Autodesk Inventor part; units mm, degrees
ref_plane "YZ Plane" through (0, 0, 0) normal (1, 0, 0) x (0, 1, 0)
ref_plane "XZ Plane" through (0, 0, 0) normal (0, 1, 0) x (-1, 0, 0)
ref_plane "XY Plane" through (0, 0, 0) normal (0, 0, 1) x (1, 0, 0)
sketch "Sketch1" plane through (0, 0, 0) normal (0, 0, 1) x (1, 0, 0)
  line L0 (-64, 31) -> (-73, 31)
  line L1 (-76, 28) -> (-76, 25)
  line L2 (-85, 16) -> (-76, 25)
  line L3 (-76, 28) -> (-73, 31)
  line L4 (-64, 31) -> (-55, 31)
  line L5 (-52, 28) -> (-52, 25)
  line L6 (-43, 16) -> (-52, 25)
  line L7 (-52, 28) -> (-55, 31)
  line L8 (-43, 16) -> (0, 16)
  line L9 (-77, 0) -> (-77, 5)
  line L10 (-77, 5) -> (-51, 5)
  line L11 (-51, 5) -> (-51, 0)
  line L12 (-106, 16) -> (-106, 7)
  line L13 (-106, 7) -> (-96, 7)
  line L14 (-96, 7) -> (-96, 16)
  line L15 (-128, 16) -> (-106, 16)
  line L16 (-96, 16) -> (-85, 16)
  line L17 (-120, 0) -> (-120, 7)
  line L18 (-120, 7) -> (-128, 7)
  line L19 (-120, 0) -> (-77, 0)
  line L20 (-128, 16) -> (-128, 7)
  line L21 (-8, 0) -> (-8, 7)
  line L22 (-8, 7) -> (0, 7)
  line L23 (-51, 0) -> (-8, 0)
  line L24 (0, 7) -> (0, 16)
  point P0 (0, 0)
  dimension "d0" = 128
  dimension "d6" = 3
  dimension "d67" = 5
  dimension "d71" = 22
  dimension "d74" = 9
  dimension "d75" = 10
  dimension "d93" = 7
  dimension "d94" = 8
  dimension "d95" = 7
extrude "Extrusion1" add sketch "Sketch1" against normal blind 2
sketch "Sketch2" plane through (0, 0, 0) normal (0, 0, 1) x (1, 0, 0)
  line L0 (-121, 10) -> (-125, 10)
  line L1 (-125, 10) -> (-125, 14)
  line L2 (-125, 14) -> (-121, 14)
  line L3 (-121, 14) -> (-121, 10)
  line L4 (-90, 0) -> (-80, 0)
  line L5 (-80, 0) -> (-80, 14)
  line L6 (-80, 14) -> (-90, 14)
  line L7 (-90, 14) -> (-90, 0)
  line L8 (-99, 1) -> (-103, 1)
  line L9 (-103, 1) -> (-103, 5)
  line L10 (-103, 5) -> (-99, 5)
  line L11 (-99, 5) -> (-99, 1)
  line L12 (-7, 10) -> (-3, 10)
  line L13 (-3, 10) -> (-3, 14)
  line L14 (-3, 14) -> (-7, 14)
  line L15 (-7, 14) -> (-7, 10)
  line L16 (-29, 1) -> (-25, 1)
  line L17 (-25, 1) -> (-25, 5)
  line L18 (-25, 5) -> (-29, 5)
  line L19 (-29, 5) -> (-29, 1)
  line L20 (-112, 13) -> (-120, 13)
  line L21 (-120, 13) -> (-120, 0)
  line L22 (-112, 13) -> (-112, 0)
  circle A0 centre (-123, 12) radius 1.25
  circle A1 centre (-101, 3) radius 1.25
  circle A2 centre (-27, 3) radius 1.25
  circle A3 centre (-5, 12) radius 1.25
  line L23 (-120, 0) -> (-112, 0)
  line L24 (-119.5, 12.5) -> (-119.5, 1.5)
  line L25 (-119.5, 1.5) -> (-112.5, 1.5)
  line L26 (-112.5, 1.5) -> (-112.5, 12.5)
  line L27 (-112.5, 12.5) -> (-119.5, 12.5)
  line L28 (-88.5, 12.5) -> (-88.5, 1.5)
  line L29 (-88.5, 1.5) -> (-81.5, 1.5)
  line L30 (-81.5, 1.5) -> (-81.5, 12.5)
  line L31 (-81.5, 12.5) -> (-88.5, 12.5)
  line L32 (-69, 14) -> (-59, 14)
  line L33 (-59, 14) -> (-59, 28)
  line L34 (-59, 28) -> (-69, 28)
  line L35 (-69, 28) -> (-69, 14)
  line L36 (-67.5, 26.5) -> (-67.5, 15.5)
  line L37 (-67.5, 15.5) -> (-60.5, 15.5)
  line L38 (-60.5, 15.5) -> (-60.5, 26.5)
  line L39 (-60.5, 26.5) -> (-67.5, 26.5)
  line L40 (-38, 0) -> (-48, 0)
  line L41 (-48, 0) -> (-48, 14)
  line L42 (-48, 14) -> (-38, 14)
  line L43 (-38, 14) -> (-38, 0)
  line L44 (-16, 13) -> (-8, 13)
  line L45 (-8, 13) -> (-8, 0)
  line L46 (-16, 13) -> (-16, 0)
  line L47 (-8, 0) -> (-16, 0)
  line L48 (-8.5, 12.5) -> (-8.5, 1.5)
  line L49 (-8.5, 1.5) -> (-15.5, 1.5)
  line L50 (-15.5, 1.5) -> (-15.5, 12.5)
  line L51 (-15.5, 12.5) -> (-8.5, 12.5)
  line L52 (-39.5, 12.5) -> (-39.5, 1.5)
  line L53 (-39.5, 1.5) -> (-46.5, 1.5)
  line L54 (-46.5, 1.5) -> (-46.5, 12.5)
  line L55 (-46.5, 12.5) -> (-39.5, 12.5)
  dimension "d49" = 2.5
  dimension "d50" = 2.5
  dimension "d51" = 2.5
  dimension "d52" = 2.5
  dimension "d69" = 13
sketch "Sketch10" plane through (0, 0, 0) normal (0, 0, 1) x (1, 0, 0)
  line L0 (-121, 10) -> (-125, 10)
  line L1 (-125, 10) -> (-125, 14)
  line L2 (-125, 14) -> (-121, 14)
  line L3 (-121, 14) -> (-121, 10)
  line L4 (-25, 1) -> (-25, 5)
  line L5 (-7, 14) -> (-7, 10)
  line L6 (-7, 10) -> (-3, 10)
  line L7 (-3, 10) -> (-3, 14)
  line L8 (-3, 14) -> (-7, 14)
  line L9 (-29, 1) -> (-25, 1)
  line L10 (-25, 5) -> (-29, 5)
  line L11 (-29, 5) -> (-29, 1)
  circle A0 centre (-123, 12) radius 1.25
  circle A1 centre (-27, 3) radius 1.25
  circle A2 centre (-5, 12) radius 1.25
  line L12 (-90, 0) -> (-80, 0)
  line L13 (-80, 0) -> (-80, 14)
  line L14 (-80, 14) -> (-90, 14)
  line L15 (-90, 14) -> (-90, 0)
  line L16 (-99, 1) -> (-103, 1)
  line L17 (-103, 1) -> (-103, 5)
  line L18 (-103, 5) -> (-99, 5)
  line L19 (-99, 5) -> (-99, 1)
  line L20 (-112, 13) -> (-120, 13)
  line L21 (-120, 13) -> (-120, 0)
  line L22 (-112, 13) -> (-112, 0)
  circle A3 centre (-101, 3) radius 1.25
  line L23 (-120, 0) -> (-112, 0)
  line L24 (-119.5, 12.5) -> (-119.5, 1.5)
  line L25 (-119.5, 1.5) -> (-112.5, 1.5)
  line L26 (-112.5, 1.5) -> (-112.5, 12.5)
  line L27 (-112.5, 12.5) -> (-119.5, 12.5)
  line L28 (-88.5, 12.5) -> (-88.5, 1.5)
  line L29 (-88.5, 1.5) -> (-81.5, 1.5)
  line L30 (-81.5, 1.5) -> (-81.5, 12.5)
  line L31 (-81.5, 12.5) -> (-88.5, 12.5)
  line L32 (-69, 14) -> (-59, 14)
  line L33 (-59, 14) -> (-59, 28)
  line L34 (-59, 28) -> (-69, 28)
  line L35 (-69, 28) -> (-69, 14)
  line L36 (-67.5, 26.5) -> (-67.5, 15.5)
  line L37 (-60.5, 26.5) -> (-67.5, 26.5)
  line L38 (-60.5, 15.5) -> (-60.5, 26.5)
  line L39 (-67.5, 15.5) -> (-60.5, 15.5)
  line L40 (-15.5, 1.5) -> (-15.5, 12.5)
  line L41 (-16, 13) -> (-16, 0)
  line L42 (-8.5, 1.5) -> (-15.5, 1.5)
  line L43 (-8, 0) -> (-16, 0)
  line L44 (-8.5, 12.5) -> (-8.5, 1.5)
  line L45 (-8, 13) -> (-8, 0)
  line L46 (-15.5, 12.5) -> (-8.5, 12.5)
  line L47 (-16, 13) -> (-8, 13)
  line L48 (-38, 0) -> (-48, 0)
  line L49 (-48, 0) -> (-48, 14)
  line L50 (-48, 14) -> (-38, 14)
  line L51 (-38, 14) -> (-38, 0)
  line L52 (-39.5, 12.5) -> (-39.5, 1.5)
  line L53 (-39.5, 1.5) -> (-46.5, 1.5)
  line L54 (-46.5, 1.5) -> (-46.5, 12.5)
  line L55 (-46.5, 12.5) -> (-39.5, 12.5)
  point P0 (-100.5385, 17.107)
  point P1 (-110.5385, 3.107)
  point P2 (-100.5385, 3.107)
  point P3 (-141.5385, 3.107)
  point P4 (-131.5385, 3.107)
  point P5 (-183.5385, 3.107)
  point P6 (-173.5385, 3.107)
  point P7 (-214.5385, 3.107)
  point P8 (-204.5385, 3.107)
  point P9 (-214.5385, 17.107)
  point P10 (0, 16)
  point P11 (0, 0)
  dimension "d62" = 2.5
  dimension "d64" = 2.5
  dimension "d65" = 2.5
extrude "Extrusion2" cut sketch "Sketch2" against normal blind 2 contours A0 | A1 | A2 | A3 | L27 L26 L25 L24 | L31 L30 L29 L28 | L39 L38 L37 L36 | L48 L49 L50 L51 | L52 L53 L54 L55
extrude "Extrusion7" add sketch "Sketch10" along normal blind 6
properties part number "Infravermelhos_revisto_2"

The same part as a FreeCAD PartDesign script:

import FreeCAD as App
import Part
import Sketcher
Q = App.Units.Quantity

doc = App.newDocument("Part")
body = doc.addObject("PartDesign::Body", "Body")

# Sketch on XY plane
sketch1 = body.newObject("Sketcher::SketchObject", "Sketch")
sketch1.AttachmentSupport = (doc.getObject("XY_Plane"), [""])
sketch1.MapMode = "FlatFace"
sketch1.addGeometry(Part.LineSegment(App.Vector(-55, 31, 0), App.Vector(-73, 31, 0)), False)
sketch1.addGeometry(Part.LineSegment(App.Vector(-73, 31, 0), App.Vector(-76, 28, 0)), False)
sketch1.addGeometry(Part.LineSegment(App.Vector(-76, 28, 0), App.Vector(-76, 25, 0)), False)
sketch1.addGeometry(Part.LineSegment(App.Vector(-76, 25, 0), App.Vector(-85, 16, 0)), False)
sketch1.addGeometry(Part.LineSegment(App.Vector(-85, 16, 0), App.Vector(-96, 16, 0)), False)
sketch1.addGeometry(Part.LineSegment(App.Vector(-96, 16, 0), App.Vector(-96, 7, 0)), False)
sketch1.addGeometry(Part.LineSegment(App.Vector(-96, 7, 0), App.Vector(-106, 7, 0)), False)
sketch1.addGeometry(Part.LineSegment(App.Vector(-106, 7, 0), App.Vector(-106, 16, 0)), False)
sketch1.addGeometry(Part.LineSegment(App.Vector(-106, 16, 0), App.Vector(-128, 16, 0)), False)
sketch1.addGeometry(Part.LineSegment(App.Vector(-128, 16, 0), App.Vector(-128, 7, 0)), False)
sketch1.addGeometry(Part.LineSegment(App.Vector(-128, 7, 0), App.Vector(-120, 7, 0)), False)
sketch1.addGeometry(Part.LineSegment(App.Vector(-120, 7, 0), App.Vector(-120, 0, 0)), False)
sketch1.addGeometry(Part.LineSegment(App.Vector(-120, 0, 0), App.Vector(-77, 0, 0)), False)
sketch1.addGeometry(Part.LineSegment(App.Vector(-77, 0, 0), App.Vector(-77, 5, 0)), False)
sketch1.addGeometry(Part.LineSegment(App.Vector(-77, 5, 0), App.Vector(-51, 5, 0)), False)
sketch1.addGeometry(Part.LineSegment(App.Vector(-51, 5, 0), App.Vector(-51, 0, 0)), False)
sketch1.addGeometry(Part.LineSegment(App.Vector(-51, 0, 0), App.Vector(-8, 0, 0)), False)
sketch1.addGeometry(Part.LineSegment(App.Vector(-8, 0, 0), App.Vector(-8, 7, 0)), False)
sketch1.addGeometry(Part.LineSegment(App.Vector(-8, 7, 0), App.Vector(0, 7, 0)), False)
sketch1.addGeometry(Part.LineSegment(App.Vector(0, 7, 0), App.Vector(0, 16, 0)), False)
sketch1.addGeometry(Part.LineSegment(App.Vector(0, 16, 0), App.Vector(-43, 16, 0)), False)
sketch1.addGeometry(Part.LineSegment(App.Vector(-43, 16, 0), App.Vector(-52, 25, 0)), False)
sketch1.addGeometry(Part.LineSegment(App.Vector(-52, 25, 0), App.Vector(-52, 28, 0)), False)
sketch1.addGeometry(Part.LineSegment(App.Vector(-52, 28, 0), App.Vector(-55, 31, 0)), False)
sketch1.addConstraint(Sketcher.Constraint("Coincident", 0, 2, 1, 1))
sketch1.addConstraint(Sketcher.Constraint("Coincident", 1, 2, 2, 1))
sketch1.addConstraint(Sketcher.Constraint("Coincident", 2, 2, 3, 1))
sketch1.addConstraint(Sketcher.Constraint("Coincident", 3, 2, 4, 1))
sketch1.addConstraint(Sketcher.Constraint("Coincident", 4, 2, 5, 1))
sketch1.addConstraint(Sketcher.Constraint("Coincident", 5, 2, 6, 1))
sketch1.addConstraint(Sketcher.Constraint("Coincident", 6, 2, 7, 1))
sketch1.addConstraint(Sketcher.Constraint("Coincident", 7, 2, 8, 1))
sketch1.addConstraint(Sketcher.Constraint("Coincident", 8, 2, 9, 1))
sketch1.addConstraint(Sketcher.Constraint("Coincident", 9, 2, 10, 1))
sketch1.addConstraint(Sketcher.Constraint("Coincident", 10, 2, 11, 1))
sketch1.addConstraint(Sketcher.Constraint("Coincident", 11, 2, 12, 1))
sketch1.addConstraint(Sketcher.Constraint("Coincident", 12, 2, 13, 1))
sketch1.addConstraint(Sketcher.Constraint("Coincident", 13, 2, 14, 1))
sketch1.addConstraint(Sketcher.Constraint("Coincident", 14, 2, 15, 1))
sketch1.addConstraint(Sketcher.Constraint("Coincident", 15, 2, 16, 1))
sketch1.addConstraint(Sketcher.Constraint("Coincident", 16, 2, 17, 1))
sketch1.addConstraint(Sketcher.Constraint("Coincident", 17, 2, 18, 1))
sketch1.addConstraint(Sketcher.Constraint("Coincident", 18, 2, 19, 1))
sketch1.addConstraint(Sketcher.Constraint("Coincident", 19, 2, 20, 1))
sketch1.addConstraint(Sketcher.Constraint("Coincident", 20, 2, 21, 1))
sketch1.addConstraint(Sketcher.Constraint("Coincident", 21, 2, 22, 1))
sketch1.addConstraint(Sketcher.Constraint("Coincident", 22, 2, 23, 1))
sketch1.addConstraint(Sketcher.Constraint("Coincident", 23, 2, 0, 1))
sketch1.addConstraint(Sketcher.Constraint("Horizontal", 0))
sketch1.addConstraint(Sketcher.Constraint("Vertical", 2))
sketch1.addConstraint(Sketcher.Constraint("Horizontal", 4))
sketch1.addConstraint(Sketcher.Constraint("Vertical", 5))
sketch1.addConstraint(Sketcher.Constraint("Horizontal", 6))
sketch1.addConstraint(Sketcher.Constraint("Vertical", 7))
sketch1.addConstraint(Sketcher.Constraint("Horizontal", 8))
sketch1.addConstraint(Sketcher.Constraint("Vertical", 9))
sketch1.addConstraint(Sketcher.Constraint("Horizontal", 10))
sketch1.addConstraint(Sketcher.Constraint("Vertical", 11))
sketch1.addConstraint(Sketcher.Constraint("Horizontal", 12))
sketch1.addConstraint(Sketcher.Constraint("Vertical", 13))
sketch1.addConstraint(Sketcher.Constraint("Horizontal", 14))
sketch1.addConstraint(Sketcher.Constraint("Vertical", 15))
sketch1.addConstraint(Sketcher.Constraint("Horizontal", 16))
sketch1.addConstraint(Sketcher.Constraint("Vertical", 17))
sketch1.addConstraint(Sketcher.Constraint("Horizontal", 18))
sketch1.addConstraint(Sketcher.Constraint("Vertical", 19))
sketch1.addConstraint(Sketcher.Constraint("Horizontal", 20))
sketch1.addConstraint(Sketcher.Constraint("Vertical", 22))
sketch1.addConstraint(Sketcher.Constraint("PointOnObject", 11, 2, -1))
sketch1.addConstraint(Sketcher.Constraint("PointOnObject", 15, 2, -1))
sketch1.addConstraint(Sketcher.Constraint("PointOnObject", 18, 2, -2))
sketch1.addConstraint(Sketcher.Constraint("Parallel", 1, 3))
sketch1.addConstraint(Sketcher.Constraint("Perpendicular", 3, 21))
sketch1.addConstraint(Sketcher.Constraint("Parallel", 21, 23))
sketch1.addConstraint(Sketcher.Constraint("Horizontal", 4, 2, 7, 2))
sketch1.addConstraint(Sketcher.Constraint("Horizontal", 6, 2, 9, 2))
sketch1.addConstraint(Sketcher.Constraint("Horizontal", 10, 2, 17, 2))
sketch1.addConstraint(Sketcher.Constraint("Horizontal", 8, 2, 19, 2))
sketch1.addConstraint(Sketcher.Constraint("Horizontal", 2, 2, 21, 2))
sketch1.addConstraint(Sketcher.Constraint("Horizontal", 1, 2, 22, 2))
sketch1.addConstraint(Sketcher.Constraint("Equal", 12, 16))
sketch1.addConstraint(Sketcher.Constraint("Equal", 10, 18))
sketch1.addConstraint(Sketcher.Constraint("Equal", 16, 20))
sketch1.addConstraint(Sketcher.Constraint("Equal", 3, 21))
sketch1.addConstraint(Sketcher.Constraint("DistanceX", 6, 2, 6, 1, Q("10 mm")))
sketch1.addConstraint(Sketcher.Constraint("DistanceX", 8, 2, 8, 1, Q("22 mm")))
sketch1.addConstraint(Sketcher.Constraint("DistanceX", 10, 1, 10, 2, Q("8 mm")))
sketch1.addConstraint(Sketcher.Constraint("DistanceY", 2, 2, 2, 1, Q("3 mm")))
sketch1.addConstraint(Sketcher.Constraint("DistanceY", 5, 2, 5, 1, Q("9 mm")))
sketch1.addConstraint(Sketcher.Constraint("DistanceY", 11, 2, 11, 1, Q("7 mm")))
sketch1.addConstraint(Sketcher.Constraint("DistanceY", 13, 1, 13, 2, Q("5 mm")))
sketch1.addConstraint(Sketcher.Constraint("DistanceX", 8, 2, -1, 1, Q("128 mm")))
sketch1.addConstraint(Sketcher.Constraint("DistanceX", 1, 2, 0, 2, Q("3 mm")))
sketch1.addConstraint(Sketcher.Constraint("DistanceX", 3, 2, 2, 2, Q("9 mm")))
sketch1.addConstraint(Sketcher.Constraint("DistanceX", 3, 2, 12, 2, Q("8 mm")))
sketch1.addConstraint(Sketcher.Constraint("DistanceX", 0, 2, 14, 2, Q("22 mm")))
pad1 = body.newObject("PartDesign::Pad", "Pad")
pad1.Profile = sketch1
pad1.Length = 2
pad1.Reversed = True

# Sketch on XY plane
sketch2 = body.newObject("Sketcher::SketchObject", "Sketch001")
sketch2.AttachmentSupport = (doc.getObject("XY_Plane"), [""])
sketch2.MapMode = "FlatFace"
sketch2.addGeometry(Part.Circle(App.Vector(-123, 12, 0), App.Vector(0, 0, 1), 1.25), False)
sketch2.addGeometry(Part.Circle(App.Vector(-101, 3, 0), App.Vector(0, 0, 1), 1.25), False)
sketch2.addGeometry(Part.Circle(App.Vector(-27, 3, 0), App.Vector(0, 0, 1), 1.25), False)
sketch2.addGeometry(Part.Circle(App.Vector(-5, 12, 0), App.Vector(0, 0, 1), 1.25), False)
sketch2.addGeometry(Part.LineSegment(App.Vector(-112.5, 12.5, 0), App.Vector(-119.5, 12.5, 0)), False)
sketch2.addGeometry(Part.LineSegment(App.Vector(-119.5, 12.5, 0), App.Vector(-119.5, 1.5, 0)), False)
sketch2.addGeometry(Part.LineSegment(App.Vector(-119.5, 1.5, 0), App.Vector(-112.5, 1.5, 0)), False)
sketch2.addGeometry(Part.LineSegment(App.Vector(-112.5, 1.5, 0), App.Vector(-112.5, 12.5, 0)), False)
sketch2.addGeometry(Part.LineSegment(App.Vector(-81.5, 12.5, 0), App.Vector(-88.5, 12.5, 0)), False)
sketch2.addGeometry(Part.LineSegment(App.Vector(-88.5, 12.5, 0), App.Vector(-88.5, 1.5, 0)), False)
sketch2.addGeometry(Part.LineSegment(App.Vector(-88.5, 1.5, 0), App.Vector(-81.5, 1.5, 0)), False)
sketch2.addGeometry(Part.LineSegment(App.Vector(-81.5, 1.5, 0), App.Vector(-81.5, 12.5, 0)), False)
sketch2.addGeometry(Part.LineSegment(App.Vector(-60.5, 26.5, 0), App.Vector(-67.5, 26.5, 0)), False)
sketch2.addGeometry(Part.LineSegment(App.Vector(-67.5, 26.5, 0), App.Vector(-67.5, 15.5, 0)), False)
sketch2.addGeometry(Part.LineSegment(App.Vector(-67.5, 15.5, 0), App.Vector(-60.5, 15.5, 0)), False)
sketch2.addGeometry(Part.LineSegment(App.Vector(-60.5, 15.5, 0), App.Vector(-60.5, 26.5, 0)), False)
sketch2.addGeometry(Part.LineSegment(App.Vector(-8.5, 1.5, 0), App.Vector(-8.5, 12.5, 0)), False)
sketch2.addGeometry(Part.LineSegment(App.Vector(-8.5, 12.5, 0), App.Vector(-15.5, 12.5, 0)), False)
sketch2.addGeometry(Part.LineSegment(App.Vector(-15.5, 12.5, 0), App.Vector(-15.5, 1.5, 0)), False)
sketch2.addGeometry(Part.LineSegment(App.Vector(-15.5, 1.5, 0), App.Vector(-8.5, 1.5, 0)), False)
sketch2.addGeometry(Part.LineSegment(App.Vector(-39.5, 1.5, 0), App.Vector(-39.5, 12.5, 0)), False)
sketch2.addGeometry(Part.LineSegment(App.Vector(-39.5, 12.5, 0), App.Vector(-46.5, 12.5, 0)), False)
sketch2.addGeometry(Part.LineSegment(App.Vector(-46.5, 12.5, 0), App.Vector(-46.5, 1.5, 0)), False)
sketch2.addGeometry(Part.LineSegment(App.Vector(-46.5, 1.5, 0), App.Vector(-39.5, 1.5, 0)), False)
sketch2.addConstraint(Sketcher.Constraint("Coincident", 4, 2, 5, 1))
sketch2.addConstraint(Sketcher.Constraint("Coincident", 5, 2, 6, 1))
sketch2.addConstraint(Sketcher.Constraint("Coincident", 6, 2, 7, 1))
sketch2.addConstraint(Sketcher.Constraint("Coincident", 7, 2, 4, 1))
sketch2.addConstraint(Sketcher.Constraint("Coincident", 8, 2, 9, 1))
sketch2.addConstraint(Sketcher.Constraint("Coincident", 9, 2, 10, 1))
sketch2.addConstraint(Sketcher.Constraint("Coincident", 10, 2, 11, 1))
sketch2.addConstraint(Sketcher.Constraint("Coincident", 11, 2, 8, 1))
sketch2.addConstraint(Sketcher.Constraint("Coincident", 12, 2, 13, 1))
sketch2.addConstraint(Sketcher.Constraint("Coincident", 13, 2, 14, 1))
sketch2.addConstraint(Sketcher.Constraint("Coincident", 14, 2, 15, 1))
sketch2.addConstraint(Sketcher.Constraint("Coincident", 15, 2, 12, 1))
sketch2.addConstraint(Sketcher.Constraint("Coincident", 16, 2, 17, 1))
sketch2.addConstraint(Sketcher.Constraint("Coincident", 17, 2, 18, 1))
sketch2.addConstraint(Sketcher.Constraint("Coincident", 18, 2, 19, 1))
sketch2.addConstraint(Sketcher.Constraint("Coincident", 19, 2, 16, 1))
sketch2.addConstraint(Sketcher.Constraint("Coincident", 20, 2, 21, 1))
sketch2.addConstraint(Sketcher.Constraint("Coincident", 21, 2, 22, 1))
sketch2.addConstraint(Sketcher.Constraint("Coincident", 22, 2, 23, 1))
sketch2.addConstraint(Sketcher.Constraint("Coincident", 23, 2, 20, 1))
sketch2.addConstraint(Sketcher.Constraint("Horizontal", 4))
sketch2.addConstraint(Sketcher.Constraint("Vertical", 5))
sketch2.addConstraint(Sketcher.Constraint("Horizontal", 6))
sketch2.addConstraint(Sketcher.Constraint("Vertical", 7))
sketch2.addConstraint(Sketcher.Constraint("Horizontal", 8))
sketch2.addConstraint(Sketcher.Constraint("Vertical", 9))
sketch2.addConstraint(Sketcher.Constraint("Horizontal", 10))
sketch2.addConstraint(Sketcher.Constraint("Vertical", 11))
sketch2.addConstraint(Sketcher.Constraint("Horizontal", 12))
sketch2.addConstraint(Sketcher.Constraint("Vertical", 13))
sketch2.addConstraint(Sketcher.Constraint("Horizontal", 14))
sketch2.addConstraint(Sketcher.Constraint("Vertical", 15))
sketch2.addConstraint(Sketcher.Constraint("Vertical", 16))
sketch2.addConstraint(Sketcher.Constraint("Horizontal", 17))
sketch2.addConstraint(Sketcher.Constraint("Vertical", 18))
sketch2.addConstraint(Sketcher.Constraint("Horizontal", 19))
sketch2.addConstraint(Sketcher.Constraint("Vertical", 20))
sketch2.addConstraint(Sketcher.Constraint("Horizontal", 21))
sketch2.addConstraint(Sketcher.Constraint("Vertical", 22))
sketch2.addConstraint(Sketcher.Constraint("Horizontal", 23))
sketch2.addConstraint(Sketcher.Constraint("Equal", 0, 1))
sketch2.addConstraint(Sketcher.Constraint("Equal", 1, 2))
sketch2.addConstraint(Sketcher.Constraint("Equal", 2, 3))
sketch2.addConstraint(Sketcher.Constraint("Horizontal", 1, 3, 2, 3))
sketch2.addConstraint(Sketcher.Constraint("Horizontal", 0, 3, 3, 3))
sketch2.addConstraint(Sketcher.Constraint("Horizontal", 7, 2, 8, 2))
sketch2.addConstraint(Sketcher.Constraint("Horizontal", 6, 2, 9, 2))
sketch2.addConstraint(Sketcher.Constraint("Horizontal", 11, 2, 16, 2))
sketch2.addConstraint(Sketcher.Constraint("Horizontal", 10, 2, 18, 2))
sketch2.addConstraint(Sketcher.Constraint("Horizontal", 17, 2, 20, 2))
sketch2.addConstraint(Sketcher.Constraint("Horizontal", 19, 2, 22, 2))
sketch2.addConstraint(Sketcher.Constraint("Equal", 6, 8))
sketch2.addConstraint(Sketcher.Constraint("Equal", 10, 12))
sketch2.addConstraint(Sketcher.Constraint("Equal", 14, 17))
sketch2.addConstraint(Sketcher.Constraint("Equal", 19, 21))
sketch2.addConstraint(Sketcher.Constraint("Equal", 11, 13))
sketch2.addConstraint(Sketcher.Constraint("Diameter", 0, Q("2.5 mm")))
sketch2.addConstraint(Sketcher.Constraint("DistanceX", 4, 2, 4, 1, Q("7 mm")))
sketch2.addConstraint(Sketcher.Constraint("DistanceY", 5, 2, 5, 1, Q("11 mm")))
sketch2.addConstraint(Sketcher.Constraint("DistanceX", 0, 3, -1, 1, Q("123 mm")))
sketch2.addConstraint(Sketcher.Constraint("DistanceY", -1, 1, 0, 3, Q("12 mm")))
sketch2.addConstraint(Sketcher.Constraint("DistanceX", 1, 3, -1, 1, Q("101 mm")))
sketch2.addConstraint(Sketcher.Constraint("DistanceY", -1, 1, 1, 3, Q("3 mm")))
sketch2.addConstraint(Sketcher.Constraint("DistanceX", 2, 3, -1, 1, Q("27 mm")))
sketch2.addConstraint(Sketcher.Constraint("DistanceX", 3, 3, -1, 1, Q("5 mm")))
sketch2.addConstraint(Sketcher.Constraint("DistanceX", 7, 2, 8, 2, Q("24 mm")))
sketch2.addConstraint(Sketcher.Constraint("DistanceX", 11, 2, 12, 2, Q("14 mm")))
sketch2.addConstraint(Sketcher.Constraint("DistanceY", 11, 2, 12, 2, Q("14 mm")))
sketch2.addConstraint(Sketcher.Constraint("DistanceX", 14, 2, 16, 2, Q("52 mm")))
sketch2.addConstraint(Sketcher.Constraint("DistanceX", 14, 2, 20, 2, Q("21 mm")))
sketch2.addConstraint(Sketcher.Constraint("DistanceX", 4, 2, -1, 1, Q("119.5 mm")))
sketch2.addConstraint(Sketcher.Constraint("DistanceY", -1, 1, 4, 2, Q("12.5 mm")))
pocket1 = body.newObject("PartDesign::Pocket", "Pocket")
pocket1.Profile = sketch2
pocket1.Length = 2

# Sketch on XY plane
sketch3 = body.newObject("Sketcher::SketchObject", "Sketch002")
sketch3.AttachmentSupport = (doc.getObject("XY_Plane"), [""])
sketch3.MapMode = "FlatFace"
sketch3.addGeometry(Part.LineSegment(App.Vector(-125, 10, 0), App.Vector(-121, 10, 0)), False)
sketch3.addGeometry(Part.LineSegment(App.Vector(-121, 10, 0), App.Vector(-121, 14, 0)), False)
sketch3.addGeometry(Part.LineSegment(App.Vector(-121, 14, 0), App.Vector(-125, 14, 0)), False)
sketch3.addGeometry(Part.LineSegment(App.Vector(-125, 14, 0), App.Vector(-125, 10, 0)), False)
sketch3.addGeometry(Part.Circle(App.Vector(-123, 12, 0), App.Vector(0, 0, 1), 1.25), False)
sketch3.addGeometry(Part.LineSegment(App.Vector(-29, 1, 0), App.Vector(-25, 1, 0)), False)
sketch3.addGeometry(Part.LineSegment(App.Vector(-25, 1, 0), App.Vector(-25, 5, 0)), False)
sketch3.addGeometry(Part.LineSegment(App.Vector(-25, 5, 0), App.Vector(-29, 5, 0)), False)
sketch3.addGeometry(Part.LineSegment(App.Vector(-29, 5, 0), App.Vector(-29, 1, 0)), False)
sketch3.addGeometry(Part.Circle(App.Vector(-27, 3, 0), App.Vector(0, 0, 1), 1.25), False)
sketch3.addGeometry(Part.LineSegment(App.Vector(-3, 14, 0), App.Vector(-7, 14, 0)), False)
sketch3.addGeometry(Part.LineSegment(App.Vector(-7, 14, 0), App.Vector(-7, 10, 0)), False)
sketch3.addGeometry(Part.LineSegment(App.Vector(-7, 10, 0), App.Vector(-3, 10, 0)), False)
sketch3.addGeometry(Part.LineSegment(App.Vector(-3, 10, 0), App.Vector(-3, 14, 0)), False)
sketch3.addGeometry(Part.Circle(App.Vector(-5, 12, 0), App.Vector(0, 0, 1), 1.25), False)
sketch3.addGeometry(Part.LineSegment(App.Vector(-90, 14, 0), App.Vector(-90, 0, 0)), False)
sketch3.addGeometry(Part.LineSegment(App.Vector(-90, 0, 0), App.Vector(-80, 0, 0)), False)
sketch3.addGeometry(Part.LineSegment(App.Vector(-80, 0, 0), App.Vector(-80, 14, 0)), False)
sketch3.addGeometry(Part.LineSegment(App.Vector(-80, 14, 0), App.Vector(-90, 14, 0)), False)
sketch3.addGeometry(Part.LineSegment(App.Vector(-88.5, 1.5, 0), App.Vector(-88.5, 12.5, 0)), False)
sketch3.addGeometry(Part.LineSegment(App.Vector(-88.5, 12.5, 0), App.Vector(-81.5, 12.5, 0)), False)
sketch3.addGeometry(Part.LineSegment(App.Vector(-81.5, 12.5, 0), App.Vector(-81.5, 1.5, 0)), False)
sketch3.addGeometry(Part.LineSegment(App.Vector(-81.5, 1.5, 0), App.Vector(-88.5, 1.5, 0)), False)
sketch3.addGeometry(Part.LineSegment(App.Vector(-103, 1, 0), App.Vector(-99, 1, 0)), False)
sketch3.addGeometry(Part.LineSegment(App.Vector(-99, 1, 0), App.Vector(-99, 5, 0)), False)
sketch3.addGeometry(Part.LineSegment(App.Vector(-99, 5, 0), App.Vector(-103, 5, 0)), False)
sketch3.addGeometry(Part.LineSegment(App.Vector(-103, 5, 0), App.Vector(-103, 1, 0)), False)
sketch3.addGeometry(Part.Circle(App.Vector(-101, 3, 0), App.Vector(0, 0, 1), 1.25), False)
sketch3.addGeometry(Part.LineSegment(App.Vector(-112, 0, 0), App.Vector(-112, 13, 0)), False)
sketch3.addGeometry(Part.LineSegment(App.Vector(-112, 13, 0), App.Vector(-120, 13, 0)), False)
sketch3.addGeometry(Part.LineSegment(App.Vector(-120, 13, 0), App.Vector(-120, 0, 0)), False)
sketch3.addGeometry(Part.LineSegment(App.Vector(-120, 0, 0), App.Vector(-112, 0, 0)), False)
sketch3.addGeometry(Part.LineSegment(App.Vector(-119.5, 1.5, 0), App.Vector(-119.5, 12.5, 0)), False)
sketch3.addGeometry(Part.LineSegment(App.Vector(-119.5, 12.5, 0), App.Vector(-112.5, 12.5, 0)), False)
sketch3.addGeometry(Part.LineSegment(App.Vector(-112.5, 12.5, 0), App.Vector(-112.5, 1.5, 0)), False)
sketch3.addGeometry(Part.LineSegment(App.Vector(-112.5, 1.5, 0), App.Vector(-119.5, 1.5, 0)), False)
sketch3.addGeometry(Part.LineSegment(App.Vector(-69, 28, 0), App.Vector(-69, 14, 0)), False)
sketch3.addGeometry(Part.LineSegment(App.Vector(-69, 14, 0), App.Vector(-59, 14, 0)), False)
sketch3.addGeometry(Part.LineSegment(App.Vector(-59, 14, 0), App.Vector(-59, 28, 0)), False)
sketch3.addGeometry(Part.LineSegment(App.Vector(-59, 28, 0), App.Vector(-69, 28, 0)), False)
sketch3.addGeometry(Part.LineSegment(App.Vector(-67.5, 15.5, 0), App.Vector(-67.5, 26.5, 0)), False)
sketch3.addGeometry(Part.LineSegment(App.Vector(-67.5, 26.5, 0), App.Vector(-60.5, 26.5, 0)), False)
sketch3.addGeometry(Part.LineSegment(App.Vector(-60.5, 26.5, 0), App.Vector(-60.5, 15.5, 0)), False)
sketch3.addGeometry(Part.LineSegment(App.Vector(-60.5, 15.5, 0), App.Vector(-67.5, 15.5, 0)), False)
sketch3.addGeometry(Part.LineSegment(App.Vector(-8, 13, 0), App.Vector(-16, 13, 0)), False)
sketch3.addGeometry(Part.LineSegment(App.Vector(-16, 13, 0), App.Vector(-16, 0, 0)), False)
sketch3.addGeometry(Part.LineSegment(App.Vector(-16, 0, 0), App.Vector(-8, 0, 0)), False)
sketch3.addGeometry(Part.LineSegment(App.Vector(-8, 0, 0), App.Vector(-8, 13, 0)), False)
sketch3.addGeometry(Part.LineSegment(App.Vector(-8.5, 1.5, 0), App.Vector(-15.5, 1.5, 0)), False)
sketch3.addGeometry(Part.LineSegment(App.Vector(-15.5, 1.5, 0), App.Vector(-15.5, 12.5, 0)), False)
sketch3.addGeometry(Part.LineSegment(App.Vector(-15.5, 12.5, 0), App.Vector(-8.5, 12.5, 0)), False)
sketch3.addGeometry(Part.LineSegment(App.Vector(-8.5, 12.5, 0), App.Vector(-8.5, 1.5, 0)), False)
sketch3.addGeometry(Part.LineSegment(App.Vector(-48, 0, 0), App.Vector(-38, 0, 0)), False)
sketch3.addGeometry(Part.LineSegment(App.Vector(-38, 0, 0), App.Vector(-38, 14, 0)), False)
sketch3.addGeometry(Part.LineSegment(App.Vector(-38, 14, 0), App.Vector(-48, 14, 0)), False)
sketch3.addGeometry(Part.LineSegment(App.Vector(-48, 14, 0), App.Vector(-48, 0, 0)), False)
sketch3.addGeometry(Part.LineSegment(App.Vector(-46.5, 12.5, 0), App.Vector(-39.5, 12.5, 0)), False)
sketch3.addGeometry(Part.LineSegment(App.Vector(-39.5, 12.5, 0), App.Vector(-39.5, 1.5, 0)), False)
sketch3.addGeometry(Part.LineSegment(App.Vector(-39.5, 1.5, 0), App.Vector(-46.5, 1.5, 0)), False)
sketch3.addGeometry(Part.LineSegment(App.Vector(-46.5, 1.5, 0), App.Vector(-46.5, 12.5, 0)), False)
sketch3.addConstraint(Sketcher.Constraint("Coincident", 0, 2, 1, 1))
sketch3.addConstraint(Sketcher.Constraint("Coincident", 1, 2, 2, 1))
sketch3.addConstraint(Sketcher.Constraint("Coincident", 2, 2, 3, 1))
sketch3.addConstraint(Sketcher.Constraint("Coincident", 3, 2, 0, 1))
sketch3.addConstraint(Sketcher.Constraint("Coincident", 5, 2, 6, 1))
sketch3.addConstraint(Sketcher.Constraint("Coincident", 6, 2, 7, 1))
sketch3.addConstraint(Sketcher.Constraint("Coincident", 7, 2, 8, 1))
sketch3.addConstraint(Sketcher.Constraint("Coincident", 8, 2, 5, 1))
sketch3.addConstraint(Sketcher.Constraint("Coincident", 10, 2, 11, 1))
sketch3.addConstraint(Sketcher.Constraint("Coincident", 11, 2, 12, 1))
sketch3.addConstraint(Sketcher.Constraint("Coincident", 12, 2, 13, 1))
sketch3.addConstraint(Sketcher.Constraint("Coincident", 13, 2, 10, 1))
sketch3.addConstraint(Sketcher.Constraint("Coincident", 15, 2, 16, 1))
sketch3.addConstraint(Sketcher.Constraint("Coincident", 16, 2, 17, 1))
sketch3.addConstraint(Sketcher.Constraint("Coincident", 17, 2, 18, 1))
sketch3.addConstraint(Sketcher.Constraint("Coincident", 18, 2, 15, 1))
sketch3.addConstraint(Sketcher.Constraint("Coincident", 19, 2, 20, 1))
sketch3.addConstraint(Sketcher.Constraint("Coincident", 20, 2, 21, 1))
sketch3.addConstraint(Sketcher.Constraint("Coincident", 21, 2, 22, 1))
sketch3.addConstraint(Sketcher.Constraint("Coincident", 22, 2, 19, 1))
sketch3.addConstraint(Sketcher.Constraint("Coincident", 23, 2, 24, 1))
sketch3.addConstraint(Sketcher.Constraint("Coincident", 24, 2, 25, 1))
sketch3.addConstraint(Sketcher.Constraint("Coincident", 25, 2, 26, 1))
sketch3.addConstraint(Sketcher.Constraint("Coincident", 26, 2, 23, 1))
sketch3.addConstraint(Sketcher.Constraint("Coincident", 28, 2, 29, 1))
sketch3.addConstraint(Sketcher.Constraint("Coincident", 29, 2, 30, 1))
sketch3.addConstraint(Sketcher.Constraint("Coincident", 30, 2, 31, 1))
sketch3.addConstraint(Sketcher.Constraint("Coincident", 31, 2, 28, 1))
sketch3.addConstraint(Sketcher.Constraint("Coincident", 32, 2, 33, 1))
sketch3.addConstraint(Sketcher.Constraint("Coincident", 33, 2, 34, 1))
sketch3.addConstraint(Sketcher.Constraint("Coincident", 34, 2, 35, 1))
sketch3.addConstraint(Sketcher.Constraint("Coincident", 35, 2, 32, 1))
sketch3.addConstraint(Sketcher.Constraint("Coincident", 36, 2, 37, 1))
sketch3.addConstraint(Sketcher.Constraint("Coincident", 37, 2, 38, 1))
sketch3.addConstraint(Sketcher.Constraint("Coincident", 38, 2, 39, 1))
sketch3.addConstraint(Sketcher.Constraint("Coincident", 39, 2, 36, 1))
sketch3.addConstraint(Sketcher.Constraint("Coincident", 40, 2, 41, 1))
sketch3.addConstraint(Sketcher.Constraint("Coincident", 41, 2, 42, 1))
sketch3.addConstraint(Sketcher.Constraint("Coincident", 42, 2, 43, 1))
sketch3.addConstraint(Sketcher.Constraint("Coincident", 43, 2, 40, 1))
sketch3.addConstraint(Sketcher.Constraint("Coincident", 44, 2, 45, 1))
sketch3.addConstraint(Sketcher.Constraint("Coincident", 45, 2, 46, 1))
sketch3.addConstraint(Sketcher.Constraint("Coincident", 46, 2, 47, 1))
sketch3.addConstraint(Sketcher.Constraint("Coincident", 47, 2, 44, 1))
sketch3.addConstraint(Sketcher.Constraint("Coincident", 48, 2, 49, 1))
sketch3.addConstraint(Sketcher.Constraint("Coincident", 49, 2, 50, 1))
sketch3.addConstraint(Sketcher.Constraint("Coincident", 50, 2, 51, 1))
sketch3.addConstraint(Sketcher.Constraint("Coincident", 51, 2, 48, 1))
sketch3.addConstraint(Sketcher.Constraint("Coincident", 52, 2, 53, 1))
sketch3.addConstraint(Sketcher.Constraint("Coincident", 53, 2, 54, 1))
sketch3.addConstraint(Sketcher.Constraint("Coincident", 54, 2, 55, 1))
sketch3.addConstraint(Sketcher.Constraint("Coincident", 55, 2, 52, 1))
sketch3.addConstraint(Sketcher.Constraint("Coincident", 56, 2, 57, 1))
sketch3.addConstraint(Sketcher.Constraint("Coincident", 57, 2, 58, 1))
sketch3.addConstraint(Sketcher.Constraint("Coincident", 58, 2, 59, 1))
sketch3.addConstraint(Sketcher.Constraint("Coincident", 59, 2, 56, 1))
sketch3.addConstraint(Sketcher.Constraint("Horizontal", 0))
sketch3.addConstraint(Sketcher.Constraint("Vertical", 1))
sketch3.addConstraint(Sketcher.Constraint("Horizontal", 2))
sketch3.addConstraint(Sketcher.Constraint("Vertical", 3))
sketch3.addConstraint(Sketcher.Constraint("Horizontal", 5))
sketch3.addConstraint(Sketcher.Constraint("Vertical", 6))
sketch3.addConstraint(Sketcher.Constraint("Horizontal", 7))
sketch3.addConstraint(Sketcher.Constraint("Vertical", 8))
sketch3.addConstraint(Sketcher.Constraint("Horizontal", 10))
sketch3.addConstraint(Sketcher.Constraint("Vertical", 11))
sketch3.addConstraint(Sketcher.Constraint("Horizontal", 12))
sketch3.addConstraint(Sketcher.Constraint("Vertical", 13))
sketch3.addConstraint(Sketcher.Constraint("Vertical", 15))
sketch3.addConstraint(Sketcher.Constraint("Horizontal", 16))
sketch3.addConstraint(Sketcher.Constraint("Vertical", 17))
sketch3.addConstraint(Sketcher.Constraint("Horizontal", 18))
sketch3.addConstraint(Sketcher.Constraint("Vertical", 19))
sketch3.addConstraint(Sketcher.Constraint("Horizontal", 20))
sketch3.addConstraint(Sketcher.Constraint("Vertical", 21))
sketch3.addConstraint(Sketcher.Constraint("Horizontal", 22))
sketch3.addConstraint(Sketcher.Constraint("Horizontal", 23))
sketch3.addConstraint(Sketcher.Constraint("Vertical", 24))
sketch3.addConstraint(Sketcher.Constraint("Horizontal", 25))
sketch3.addConstraint(Sketcher.Constraint("Vertical", 26))
sketch3.addConstraint(Sketcher.Constraint("Vertical", 28))
sketch3.addConstraint(Sketcher.Constraint("Horizontal", 29))
sketch3.addConstraint(Sketcher.Constraint("Vertical", 30))
sketch3.addConstraint(Sketcher.Constraint("Horizontal", 31))
sketch3.addConstraint(Sketcher.Constraint("Vertical", 32))
sketch3.addConstraint(Sketcher.Constraint("Horizontal", 33))
sketch3.addConstraint(Sketcher.Constraint("Vertical", 34))
sketch3.addConstraint(Sketcher.Constraint("Horizontal", 35))
sketch3.addConstraint(Sketcher.Constraint("Vertical", 36))
sketch3.addConstraint(Sketcher.Constraint("Horizontal", 37))
sketch3.addConstraint(Sketcher.Constraint("Vertical", 38))
sketch3.addConstraint(Sketcher.Constraint("Horizontal", 39))
sketch3.addConstraint(Sketcher.Constraint("Vertical", 40))
sketch3.addConstraint(Sketcher.Constraint("Horizontal", 41))
sketch3.addConstraint(Sketcher.Constraint("Vertical", 42))
sketch3.addConstraint(Sketcher.Constraint("Horizontal", 43))
sketch3.addConstraint(Sketcher.Constraint("Horizontal", 44))
sketch3.addConstraint(Sketcher.Constraint("Vertical", 45))
sketch3.addConstraint(Sketcher.Constraint("Horizontal", 46))
sketch3.addConstraint(Sketcher.Constraint("Vertical", 47))
sketch3.addConstraint(Sketcher.Constraint("Horizontal", 48))
sketch3.addConstraint(Sketcher.Constraint("Vertical", 49))
sketch3.addConstraint(Sketcher.Constraint("Horizontal", 50))
sketch3.addConstraint(Sketcher.Constraint("Vertical", 51))
sketch3.addConstraint(Sketcher.Constraint("Horizontal", 52))
sketch3.addConstraint(Sketcher.Constraint("Vertical", 53))
sketch3.addConstraint(Sketcher.Constraint("Horizontal", 54))
sketch3.addConstraint(Sketcher.Constraint("Vertical", 55))
sketch3.addConstraint(Sketcher.Constraint("Horizontal", 56))
sketch3.addConstraint(Sketcher.Constraint("Vertical", 57))
sketch3.addConstraint(Sketcher.Constraint("Horizontal", 58))
sketch3.addConstraint(Sketcher.Constraint("Vertical", 59))
sketch3.addConstraint(Sketcher.Constraint("Equal", 4, 9))
sketch3.addConstraint(Sketcher.Constraint("Equal", 9, 14))
sketch3.addConstraint(Sketcher.Constraint("Equal", 14, 27))
sketch3.addConstraint(Sketcher.Constraint("PointOnObject", 15, 2, -1))
sketch3.addConstraint(Sketcher.Constraint("PointOnObject", 30, 2, -1))
sketch3.addConstraint(Sketcher.Constraint("PointOnObject", 45, 2, -1))
sketch3.addConstraint(Sketcher.Constraint("PointOnObject", 52, 2, -1))
sketch3.addConstraint(Sketcher.Constraint("Horizontal", 4, 3, 14, 3))
sketch3.addConstraint(Sketcher.Constraint("Horizontal", 9, 3, 27, 3))
sketch3.addConstraint(Sketcher.Constraint("Horizontal", 2, 2, 10, 2))
sketch3.addConstraint(Sketcher.Constraint("Horizontal", 3, 2, 11, 2))
sketch3.addConstraint(Sketcher.Constraint("Horizontal", 13, 2, 17, 2))
sketch3.addConstraint(Sketcher.Constraint("Horizontal", 8, 2, 23, 2))
sketch3.addConstraint(Sketcher.Constraint("Horizontal", 7, 2, 24, 2))
sketch3.addConstraint(Sketcher.Constraint("Horizontal", 20, 2, 32, 2))
sketch3.addConstraint(Sketcher.Constraint("Horizontal", 22, 2, 34, 2))
sketch3.addConstraint(Sketcher.Constraint("Horizontal", 18, 2, 36, 2))
sketch3.addConstraint(Sketcher.Constraint("Horizontal", 29, 2, 44, 2))
sketch3.addConstraint(Sketcher.Constraint("Horizontal", 35, 2, 48, 2))
sketch3.addConstraint(Sketcher.Constraint("Horizontal", 33, 2, 49, 2))
sketch3.addConstraint(Sketcher.Constraint("Horizontal", 37, 2, 53, 2))
sketch3.addConstraint(Sketcher.Constraint("Horizontal", 50, 2, 56, 2))
sketch3.addConstraint(Sketcher.Constraint("Horizontal", 51, 2, 57, 2))
sketch3.addConstraint(Sketcher.Constraint("Equal", 2, 5))
sketch3.addConstraint(Sketcher.Constraint("Equal", 7, 10))
sketch3.addConstraint(Sketcher.Constraint("Equal", 12, 23))
sketch3.addConstraint(Sketcher.Constraint("Equal", 22, 33))
sketch3.addConstraint(Sketcher.Constraint("Equal", 18, 37))
sketch3.addConstraint(Sketcher.Constraint("Equal", 35, 41))
sketch3.addConstraint(Sketcher.Constraint("Equal", 31, 44))
sketch3.addConstraint(Sketcher.Constraint("Equal", 43, 48))
sketch3.addConstraint(Sketcher.Constraint("Equal", 39, 52))
sketch3.addConstraint(Sketcher.Constraint("Equal", 50, 56))
sketch3.addConstraint(Sketcher.Constraint("Equal", 25, 1))
sketch3.addConstraint(Sketcher.Constraint("Equal", 3, 6))
sketch3.addConstraint(Sketcher.Constraint("Equal", 17, 36))
sketch3.addConstraint(Sketcher.Constraint("Equal", 34, 40))
sketch3.addConstraint(Sketcher.Constraint("Diameter", 4, Q("2.5 mm")))
sketch3.addConstraint(Sketcher.Constraint("DistanceY", 0, 2, 32, 2, Q("2.5 mm")))
sketch3.addConstraint(Sketcher.Constraint("DistanceX", 0, 1, 0, 2, Q("4 mm")))
sketch3.addConstraint(Sketcher.Constraint("DistanceX", 16, 1, 16, 2, Q("10 mm")))
sketch3.addConstraint(Sketcher.Constraint("DistanceX", 20, 1, 20, 2, Q("7 mm")))
sketch3.addConstraint(Sketcher.Constraint("DistanceX", 29, 2, 29, 1, Q("8 mm")))
sketch3.addConstraint(Sketcher.Constraint("DistanceY", 15, 2, 15, 1, Q("14 mm")))
sketch3.addConstraint(Sketcher.Constraint("DistanceY", 19, 1, 19, 2, Q("11 mm")))
sketch3.addConstraint(Sketcher.Constraint("DistanceY", 28, 1, 28, 2, Q("13 mm")))
sketch3.addConstraint(Sketcher.Constraint("DistanceX", 4, 3, -1, 1, Q("123 mm")))
sketch3.addConstraint(Sketcher.Constraint("DistanceY", -1, 1, 4, 3, Q("12 mm")))
sketch3.addConstraint(Sketcher.Constraint("DistanceX", 9, 3, -1, 1, Q("27 mm")))
sketch3.addConstraint(Sketcher.Constraint("DistanceY", -1, 1, 9, 3, Q("3 mm")))
sketch3.addConstraint(Sketcher.Constraint("DistanceX", 14, 3, -1, 1, Q("5 mm")))
sketch3.addConstraint(Sketcher.Constraint("DistanceX", 27, 3, -1, 1, Q("101 mm")))
sketch3.addConstraint(Sketcher.Constraint("DistanceX", 0, 2, -1, 1, Q("121 mm")))
sketch3.addConstraint(Sketcher.Constraint("DistanceX", 5, 2, -1, 1, Q("25 mm")))
sketch3.addConstraint(Sketcher.Constraint("DistanceY", -1, 1, 5, 2, Q("1 mm")))
sketch3.addConstraint(Sketcher.Constraint("DistanceX", 10, 2, -1, 1, Q("7 mm")))
sketch3.addConstraint(Sketcher.Constraint("DistanceX", 15, 2, -1, 1, Q("90 mm")))
sketch3.addConstraint(Sketcher.Constraint("DistanceX", 23, 2, -1, 1, Q("99 mm")))
sketch3.addConstraint(Sketcher.Constraint("DistanceX", 28, 2, -1, 1, Q("112 mm")))
sketch3.addConstraint(Sketcher.Constraint("DistanceX", 36, 2, -1, 1, Q("69 mm")))
sketch3.addConstraint(Sketcher.Constraint("DistanceX", 44, 2, -1, 1, Q("16 mm")))
sketch3.addConstraint(Sketcher.Constraint("DistanceX", 52, 2, -1, 1, Q("38 mm")))
sketch3.addConstraint(Sketcher.Constraint("DistanceX", 19, 2, -1, 1, Q("88.5 mm")))
sketch3.addConstraint(Sketcher.Constraint("DistanceX", 32, 2, -1, 1, Q("119.5 mm")))
sketch3.addConstraint(Sketcher.Constraint("DistanceX", 40, 2, -1, 1, Q("67.5 mm")))
sketch3.addConstraint(Sketcher.Constraint("DistanceY", -1, 1, 40, 2, Q("26.5 mm")))
sketch3.addConstraint(Sketcher.Constraint("DistanceX", 48, 2, -1, 1, Q("15.5 mm")))
sketch3.addConstraint(Sketcher.Constraint("DistanceX", 56, 2, -1, 1, Q("39.5 mm")))
pad2 = body.newObject("PartDesign::Pad", "Pad001")
pad2.Profile = sketch3
pad2.Length = 6

doc.recompute()
